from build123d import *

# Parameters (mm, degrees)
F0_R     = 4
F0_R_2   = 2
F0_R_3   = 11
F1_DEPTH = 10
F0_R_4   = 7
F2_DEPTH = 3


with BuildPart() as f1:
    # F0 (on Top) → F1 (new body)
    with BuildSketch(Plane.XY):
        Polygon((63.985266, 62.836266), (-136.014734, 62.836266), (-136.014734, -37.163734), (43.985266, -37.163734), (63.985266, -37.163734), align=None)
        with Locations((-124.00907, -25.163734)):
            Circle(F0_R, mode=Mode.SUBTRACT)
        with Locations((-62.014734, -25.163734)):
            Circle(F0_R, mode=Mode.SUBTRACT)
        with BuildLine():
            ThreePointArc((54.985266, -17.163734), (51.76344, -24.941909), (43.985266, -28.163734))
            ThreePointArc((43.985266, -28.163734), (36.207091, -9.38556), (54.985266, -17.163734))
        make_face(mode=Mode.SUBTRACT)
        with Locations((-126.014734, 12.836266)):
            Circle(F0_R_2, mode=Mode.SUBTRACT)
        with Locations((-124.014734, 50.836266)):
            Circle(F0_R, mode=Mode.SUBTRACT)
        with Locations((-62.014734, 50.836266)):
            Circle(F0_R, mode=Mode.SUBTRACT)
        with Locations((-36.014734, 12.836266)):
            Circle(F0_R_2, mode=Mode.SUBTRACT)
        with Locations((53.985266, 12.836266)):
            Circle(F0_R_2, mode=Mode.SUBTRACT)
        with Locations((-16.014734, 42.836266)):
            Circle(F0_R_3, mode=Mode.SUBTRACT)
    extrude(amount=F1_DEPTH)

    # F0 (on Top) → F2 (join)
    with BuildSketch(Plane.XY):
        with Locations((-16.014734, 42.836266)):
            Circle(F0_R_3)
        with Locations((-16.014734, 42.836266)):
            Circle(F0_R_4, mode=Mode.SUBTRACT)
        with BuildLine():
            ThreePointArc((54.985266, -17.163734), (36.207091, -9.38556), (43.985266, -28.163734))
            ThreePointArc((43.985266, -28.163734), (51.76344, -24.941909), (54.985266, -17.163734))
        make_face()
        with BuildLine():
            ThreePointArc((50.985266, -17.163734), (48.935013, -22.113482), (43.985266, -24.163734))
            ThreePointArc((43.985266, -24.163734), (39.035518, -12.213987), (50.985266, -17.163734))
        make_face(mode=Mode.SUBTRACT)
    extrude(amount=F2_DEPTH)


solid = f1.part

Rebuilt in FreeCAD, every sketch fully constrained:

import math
import FreeCAD as App
import Part
import Sketcher
Q = App.Units.Quantity


def add_polygon(sketch, points):
    """Adds a closed chain of lines whose ends are joined by coincident constraints."""
    first, n = sketch.GeometryCount, len(points)
    for a, b in zip(points, points[1:] + points[:1]):
        sketch.addGeometry(Part.LineSegment(App.Vector(*a, 0), App.Vector(*b, 0)), False)
    for i in range(n):
        sketch.addConstraint(Sketcher.Constraint("Coincident", first + i, 2, first + (i + 1) % n, 1))

doc = App.newDocument("Part")
body = doc.addObject("PartDesign::Body", "Body")

# Sketch on XY plane
sketch1 = doc.addObject("Sketcher::SketchObject", "Sketch")
body.addObject(sketch1)
sketch1.AttachmentSupport = (doc.XY_Plane, [""])
sketch1.MapMode = "FlatFace"
add_polygon(sketch1, [(64, 62.8), (-136, 62.8), (-136, -37.2), (64, -37.2)])  # lines 0-3
sketch1.addGeometry(Part.Circle(App.Vector(-124, -25.2, 0), App.Vector(0, 0, 1), 4), False)  # 4
sketch1.addGeometry(Part.Circle(App.Vector(-62, -25.2, 0), App.Vector(0, 0, 1), 4), False)  # 5
sketch1.addGeometry(Part.ArcOfCircle(Part.Circle(App.Vector(44, -17.2, 0), App.Vector(0, 0, 1), 11), math.radians(0), math.radians(270)), False)  # 6
sketch1.addGeometry(Part.ArcOfCircle(Part.Circle(App.Vector(44, -17.2, 0), App.Vector(0, 0, 1), 11), math.radians(-90), math.radians(0)), False)  # 7
sketch1.addGeometry(Part.Circle(App.Vector(-126, 12.8, 0), App.Vector(0, 0, 1), 2), False)  # 8
sketch1.addGeometry(Part.Circle(App.Vector(-124, 50.8, 0), App.Vector(0, 0, 1), 4), False)  # 9
sketch1.addGeometry(Part.Circle(App.Vector(-62, 50.8, 0), App.Vector(0, 0, 1), 4), False)  # 10
sketch1.addGeometry(Part.Circle(App.Vector(-36, 12.8, 0), App.Vector(0, 0, 1), 2), False)  # 11
sketch1.addGeometry(Part.Circle(App.Vector(54, 12.8, 0), App.Vector(0, 0, 1), 2), False)  # 12
sketch1.addGeometry(Part.Circle(App.Vector(-16, 42.8, 0), App.Vector(0, 0, 1), 11), False)  # 13
sketch1.addConstraint([
    Sketcher.Constraint("Tangent", 6, 1, 7, 2),
    Sketcher.Constraint("Coincident", 7, 1, 6, 2),
    Sketcher.Constraint("Horizontal", 0),
    Sketcher.Constraint("Vertical", 1),
    Sketcher.Constraint("Horizontal", 2),
    Sketcher.Constraint("Vertical", 3),
    Sketcher.Constraint("Equal", 4, 5),
    Sketcher.Constraint("Equal", 5, 9),
    Sketcher.Constraint("Equal", 9, 10),
    Sketcher.Constraint("Equal", 8, 11),
    Sketcher.Constraint("Equal", 11, 12),
    Sketcher.Constraint("Equal", 7, 13),
    Sketcher.Constraint("Horizontal", 4, 3, 5, 3),
    Sketcher.Constraint("Horizontal", 9, 3, 10, 3),
    Sketcher.Constraint("Horizontal", 8, 3, 11, 3),
    Sketcher.Constraint("Horizontal", 11, 3, 12, 3),
    Sketcher.Constraint("Horizontal", 7, 3, 6, 1),
    Sketcher.Constraint("Vertical", 5, 3, 10, 3),
    Sketcher.Constraint("Vertical", 6, 3, 7, 1),
    Sketcher.Constraint("Diameter", 4, Q("8 mm")),
    Sketcher.Constraint("Diameter", 8, Q("4 mm")),
    Sketcher.Constraint("Diameter", 13, Q("22 mm")),
    Sketcher.Constraint("DistanceX", 0, 2, 0, 1, Q("200 mm")),
    Sketcher.Constraint("DistanceY", 1, 2, 1, 1, Q("100 mm")),
    Sketcher.Constraint("DistanceX", 5, 3, 6, 3, Q("106 mm")),
    Sketcher.Constraint("DistanceY", 5, 3, 6, 3, Q("8 mm")),
    Sketcher.Constraint("DistanceY", 4, 3, 8, 3, Q("38 mm")),
    Sketcher.Constraint("DistanceX", 8, 3, 5, 3, Q("64 mm")),
    Sketcher.Constraint("DistanceX", 8, 3, 9, 3, Q("2 mm")),
    Sketcher.Constraint("DistanceY", 8, 3, 9, 3, Q("38 mm")),
    Sketcher.Constraint("DistanceX", 5, 3, 11, 3, Q("26 mm")),
    Sketcher.Constraint("DistanceX", 7, 3, 12, 3, Q("10 mm")),
    Sketcher.Constraint("DistanceX", 11, 3, 13, 3, Q("20 mm")),
    Sketcher.Constraint("DistanceY", 11, 3, 13, 3, Q("30 mm")),
    Sketcher.Constraint("DistanceX", 0, 2, 9, 3, Q("12 mm")),
    Sketcher.Constraint("DistanceY", 9, 3, 0, 2, Q("12 mm")),
    Sketcher.Constraint("DistanceX", 4, 3, -1, 1, Q("124.00907 mm")),
    Sketcher.Constraint("DistanceY", 4, 3, -1, 1, Q("25.163734 mm")),
    Sketcher.Constraint("DistanceX", 5, 3, -1, 1, Q("62.014734 mm")),
])
pad1 = doc.addObject("PartDesign::Pad", "Pad")
body.addObject(pad1)
pad1.Profile = sketch1
pad1.Length = 10

# Sketch on XY plane
sketch2 = doc.addObject("Sketcher::SketchObject", "Sketch001")
body.addObject(sketch2)
sketch2.AttachmentSupport = (doc.XY_Plane, [""])
sketch2.MapMode = "FlatFace"
sketch2.addGeometry([
    Part.Circle(App.Vector(-16, 43, 0), App.Vector(0, 0, 1), 11),  # 0
    Part.Circle(App.Vector(-16, 43, 0), App.Vector(0, 0, 1), 7),  # 1
    Part.ArcOfCircle(Part.Circle(App.Vector(44, -17, 0), App.Vector(0, 0, 1), 11), math.radians(0), math.radians(270)),  # 2
    Part.ArcOfCircle(Part.Circle(App.Vector(44, -17, 0), App.Vector(0, 0, 1), 11), math.radians(-90), math.radians(0)),  # 3
    Part.ArcOfCircle(Part.Circle(App.Vector(44, -17, 0), App.Vector(0, 0, 1), 7), math.radians(0), math.radians(270)),  # 4
    Part.ArcOfCircle(Part.Circle(App.Vector(44, -17, 0), App.Vector(0, 0, 1), 7), math.radians(-90), math.radians(0)),  # 5
], False)
sketch2.addConstraint([
    Sketcher.Constraint("Tangent", 2, 1, 3, 2),
    Sketcher.Constraint("Coincident", 3, 1, 2, 2),
    Sketcher.Constraint("Tangent", 4, 1, 5, 2),
    Sketcher.Constraint("Coincident", 5, 1, 4, 2),
    Sketcher.Constraint("Coincident", 1, 3, 0, 3),
    Sketcher.Constraint("Coincident", 4, 3, 2, 3),
    Sketcher.Constraint("Equal", 0, 2),
    Sketcher.Constraint("Equal", 1, 4),
    Sketcher.Constraint("Horizontal", 5, 3, 2, 1),
    Sketcher.Constraint("Horizontal", 2, 1, 4, 1),
    Sketcher.Constraint("Vertical", 5, 3, 3, 1),
    Sketcher.Constraint("Vertical", 3, 1, 5, 1),
    Sketcher.Constraint("Diameter", 0, Q("22 mm")),
    Sketcher.Constraint("Diameter", 1, Q("14 mm")),
    Sketcher.Constraint("DistanceX", 0, 3, 2, 3, Q("60 mm")),
    Sketcher.Constraint("DistanceY", 2, 3, 0, 3, Q("60 mm")),
    Sketcher.Constraint("DistanceX", 0, 3, -1, 1, Q("16.014734 mm")),
    Sketcher.Constraint("DistanceY", -1, 1, 0, 3, Q("42.836266 mm")),
])
pad2 = doc.addObject("PartDesign::Pad", "Pad001")
body.addObject(pad2)
pad2.Profile = sketch2
pad2.Length = 3

doc.recompute()
